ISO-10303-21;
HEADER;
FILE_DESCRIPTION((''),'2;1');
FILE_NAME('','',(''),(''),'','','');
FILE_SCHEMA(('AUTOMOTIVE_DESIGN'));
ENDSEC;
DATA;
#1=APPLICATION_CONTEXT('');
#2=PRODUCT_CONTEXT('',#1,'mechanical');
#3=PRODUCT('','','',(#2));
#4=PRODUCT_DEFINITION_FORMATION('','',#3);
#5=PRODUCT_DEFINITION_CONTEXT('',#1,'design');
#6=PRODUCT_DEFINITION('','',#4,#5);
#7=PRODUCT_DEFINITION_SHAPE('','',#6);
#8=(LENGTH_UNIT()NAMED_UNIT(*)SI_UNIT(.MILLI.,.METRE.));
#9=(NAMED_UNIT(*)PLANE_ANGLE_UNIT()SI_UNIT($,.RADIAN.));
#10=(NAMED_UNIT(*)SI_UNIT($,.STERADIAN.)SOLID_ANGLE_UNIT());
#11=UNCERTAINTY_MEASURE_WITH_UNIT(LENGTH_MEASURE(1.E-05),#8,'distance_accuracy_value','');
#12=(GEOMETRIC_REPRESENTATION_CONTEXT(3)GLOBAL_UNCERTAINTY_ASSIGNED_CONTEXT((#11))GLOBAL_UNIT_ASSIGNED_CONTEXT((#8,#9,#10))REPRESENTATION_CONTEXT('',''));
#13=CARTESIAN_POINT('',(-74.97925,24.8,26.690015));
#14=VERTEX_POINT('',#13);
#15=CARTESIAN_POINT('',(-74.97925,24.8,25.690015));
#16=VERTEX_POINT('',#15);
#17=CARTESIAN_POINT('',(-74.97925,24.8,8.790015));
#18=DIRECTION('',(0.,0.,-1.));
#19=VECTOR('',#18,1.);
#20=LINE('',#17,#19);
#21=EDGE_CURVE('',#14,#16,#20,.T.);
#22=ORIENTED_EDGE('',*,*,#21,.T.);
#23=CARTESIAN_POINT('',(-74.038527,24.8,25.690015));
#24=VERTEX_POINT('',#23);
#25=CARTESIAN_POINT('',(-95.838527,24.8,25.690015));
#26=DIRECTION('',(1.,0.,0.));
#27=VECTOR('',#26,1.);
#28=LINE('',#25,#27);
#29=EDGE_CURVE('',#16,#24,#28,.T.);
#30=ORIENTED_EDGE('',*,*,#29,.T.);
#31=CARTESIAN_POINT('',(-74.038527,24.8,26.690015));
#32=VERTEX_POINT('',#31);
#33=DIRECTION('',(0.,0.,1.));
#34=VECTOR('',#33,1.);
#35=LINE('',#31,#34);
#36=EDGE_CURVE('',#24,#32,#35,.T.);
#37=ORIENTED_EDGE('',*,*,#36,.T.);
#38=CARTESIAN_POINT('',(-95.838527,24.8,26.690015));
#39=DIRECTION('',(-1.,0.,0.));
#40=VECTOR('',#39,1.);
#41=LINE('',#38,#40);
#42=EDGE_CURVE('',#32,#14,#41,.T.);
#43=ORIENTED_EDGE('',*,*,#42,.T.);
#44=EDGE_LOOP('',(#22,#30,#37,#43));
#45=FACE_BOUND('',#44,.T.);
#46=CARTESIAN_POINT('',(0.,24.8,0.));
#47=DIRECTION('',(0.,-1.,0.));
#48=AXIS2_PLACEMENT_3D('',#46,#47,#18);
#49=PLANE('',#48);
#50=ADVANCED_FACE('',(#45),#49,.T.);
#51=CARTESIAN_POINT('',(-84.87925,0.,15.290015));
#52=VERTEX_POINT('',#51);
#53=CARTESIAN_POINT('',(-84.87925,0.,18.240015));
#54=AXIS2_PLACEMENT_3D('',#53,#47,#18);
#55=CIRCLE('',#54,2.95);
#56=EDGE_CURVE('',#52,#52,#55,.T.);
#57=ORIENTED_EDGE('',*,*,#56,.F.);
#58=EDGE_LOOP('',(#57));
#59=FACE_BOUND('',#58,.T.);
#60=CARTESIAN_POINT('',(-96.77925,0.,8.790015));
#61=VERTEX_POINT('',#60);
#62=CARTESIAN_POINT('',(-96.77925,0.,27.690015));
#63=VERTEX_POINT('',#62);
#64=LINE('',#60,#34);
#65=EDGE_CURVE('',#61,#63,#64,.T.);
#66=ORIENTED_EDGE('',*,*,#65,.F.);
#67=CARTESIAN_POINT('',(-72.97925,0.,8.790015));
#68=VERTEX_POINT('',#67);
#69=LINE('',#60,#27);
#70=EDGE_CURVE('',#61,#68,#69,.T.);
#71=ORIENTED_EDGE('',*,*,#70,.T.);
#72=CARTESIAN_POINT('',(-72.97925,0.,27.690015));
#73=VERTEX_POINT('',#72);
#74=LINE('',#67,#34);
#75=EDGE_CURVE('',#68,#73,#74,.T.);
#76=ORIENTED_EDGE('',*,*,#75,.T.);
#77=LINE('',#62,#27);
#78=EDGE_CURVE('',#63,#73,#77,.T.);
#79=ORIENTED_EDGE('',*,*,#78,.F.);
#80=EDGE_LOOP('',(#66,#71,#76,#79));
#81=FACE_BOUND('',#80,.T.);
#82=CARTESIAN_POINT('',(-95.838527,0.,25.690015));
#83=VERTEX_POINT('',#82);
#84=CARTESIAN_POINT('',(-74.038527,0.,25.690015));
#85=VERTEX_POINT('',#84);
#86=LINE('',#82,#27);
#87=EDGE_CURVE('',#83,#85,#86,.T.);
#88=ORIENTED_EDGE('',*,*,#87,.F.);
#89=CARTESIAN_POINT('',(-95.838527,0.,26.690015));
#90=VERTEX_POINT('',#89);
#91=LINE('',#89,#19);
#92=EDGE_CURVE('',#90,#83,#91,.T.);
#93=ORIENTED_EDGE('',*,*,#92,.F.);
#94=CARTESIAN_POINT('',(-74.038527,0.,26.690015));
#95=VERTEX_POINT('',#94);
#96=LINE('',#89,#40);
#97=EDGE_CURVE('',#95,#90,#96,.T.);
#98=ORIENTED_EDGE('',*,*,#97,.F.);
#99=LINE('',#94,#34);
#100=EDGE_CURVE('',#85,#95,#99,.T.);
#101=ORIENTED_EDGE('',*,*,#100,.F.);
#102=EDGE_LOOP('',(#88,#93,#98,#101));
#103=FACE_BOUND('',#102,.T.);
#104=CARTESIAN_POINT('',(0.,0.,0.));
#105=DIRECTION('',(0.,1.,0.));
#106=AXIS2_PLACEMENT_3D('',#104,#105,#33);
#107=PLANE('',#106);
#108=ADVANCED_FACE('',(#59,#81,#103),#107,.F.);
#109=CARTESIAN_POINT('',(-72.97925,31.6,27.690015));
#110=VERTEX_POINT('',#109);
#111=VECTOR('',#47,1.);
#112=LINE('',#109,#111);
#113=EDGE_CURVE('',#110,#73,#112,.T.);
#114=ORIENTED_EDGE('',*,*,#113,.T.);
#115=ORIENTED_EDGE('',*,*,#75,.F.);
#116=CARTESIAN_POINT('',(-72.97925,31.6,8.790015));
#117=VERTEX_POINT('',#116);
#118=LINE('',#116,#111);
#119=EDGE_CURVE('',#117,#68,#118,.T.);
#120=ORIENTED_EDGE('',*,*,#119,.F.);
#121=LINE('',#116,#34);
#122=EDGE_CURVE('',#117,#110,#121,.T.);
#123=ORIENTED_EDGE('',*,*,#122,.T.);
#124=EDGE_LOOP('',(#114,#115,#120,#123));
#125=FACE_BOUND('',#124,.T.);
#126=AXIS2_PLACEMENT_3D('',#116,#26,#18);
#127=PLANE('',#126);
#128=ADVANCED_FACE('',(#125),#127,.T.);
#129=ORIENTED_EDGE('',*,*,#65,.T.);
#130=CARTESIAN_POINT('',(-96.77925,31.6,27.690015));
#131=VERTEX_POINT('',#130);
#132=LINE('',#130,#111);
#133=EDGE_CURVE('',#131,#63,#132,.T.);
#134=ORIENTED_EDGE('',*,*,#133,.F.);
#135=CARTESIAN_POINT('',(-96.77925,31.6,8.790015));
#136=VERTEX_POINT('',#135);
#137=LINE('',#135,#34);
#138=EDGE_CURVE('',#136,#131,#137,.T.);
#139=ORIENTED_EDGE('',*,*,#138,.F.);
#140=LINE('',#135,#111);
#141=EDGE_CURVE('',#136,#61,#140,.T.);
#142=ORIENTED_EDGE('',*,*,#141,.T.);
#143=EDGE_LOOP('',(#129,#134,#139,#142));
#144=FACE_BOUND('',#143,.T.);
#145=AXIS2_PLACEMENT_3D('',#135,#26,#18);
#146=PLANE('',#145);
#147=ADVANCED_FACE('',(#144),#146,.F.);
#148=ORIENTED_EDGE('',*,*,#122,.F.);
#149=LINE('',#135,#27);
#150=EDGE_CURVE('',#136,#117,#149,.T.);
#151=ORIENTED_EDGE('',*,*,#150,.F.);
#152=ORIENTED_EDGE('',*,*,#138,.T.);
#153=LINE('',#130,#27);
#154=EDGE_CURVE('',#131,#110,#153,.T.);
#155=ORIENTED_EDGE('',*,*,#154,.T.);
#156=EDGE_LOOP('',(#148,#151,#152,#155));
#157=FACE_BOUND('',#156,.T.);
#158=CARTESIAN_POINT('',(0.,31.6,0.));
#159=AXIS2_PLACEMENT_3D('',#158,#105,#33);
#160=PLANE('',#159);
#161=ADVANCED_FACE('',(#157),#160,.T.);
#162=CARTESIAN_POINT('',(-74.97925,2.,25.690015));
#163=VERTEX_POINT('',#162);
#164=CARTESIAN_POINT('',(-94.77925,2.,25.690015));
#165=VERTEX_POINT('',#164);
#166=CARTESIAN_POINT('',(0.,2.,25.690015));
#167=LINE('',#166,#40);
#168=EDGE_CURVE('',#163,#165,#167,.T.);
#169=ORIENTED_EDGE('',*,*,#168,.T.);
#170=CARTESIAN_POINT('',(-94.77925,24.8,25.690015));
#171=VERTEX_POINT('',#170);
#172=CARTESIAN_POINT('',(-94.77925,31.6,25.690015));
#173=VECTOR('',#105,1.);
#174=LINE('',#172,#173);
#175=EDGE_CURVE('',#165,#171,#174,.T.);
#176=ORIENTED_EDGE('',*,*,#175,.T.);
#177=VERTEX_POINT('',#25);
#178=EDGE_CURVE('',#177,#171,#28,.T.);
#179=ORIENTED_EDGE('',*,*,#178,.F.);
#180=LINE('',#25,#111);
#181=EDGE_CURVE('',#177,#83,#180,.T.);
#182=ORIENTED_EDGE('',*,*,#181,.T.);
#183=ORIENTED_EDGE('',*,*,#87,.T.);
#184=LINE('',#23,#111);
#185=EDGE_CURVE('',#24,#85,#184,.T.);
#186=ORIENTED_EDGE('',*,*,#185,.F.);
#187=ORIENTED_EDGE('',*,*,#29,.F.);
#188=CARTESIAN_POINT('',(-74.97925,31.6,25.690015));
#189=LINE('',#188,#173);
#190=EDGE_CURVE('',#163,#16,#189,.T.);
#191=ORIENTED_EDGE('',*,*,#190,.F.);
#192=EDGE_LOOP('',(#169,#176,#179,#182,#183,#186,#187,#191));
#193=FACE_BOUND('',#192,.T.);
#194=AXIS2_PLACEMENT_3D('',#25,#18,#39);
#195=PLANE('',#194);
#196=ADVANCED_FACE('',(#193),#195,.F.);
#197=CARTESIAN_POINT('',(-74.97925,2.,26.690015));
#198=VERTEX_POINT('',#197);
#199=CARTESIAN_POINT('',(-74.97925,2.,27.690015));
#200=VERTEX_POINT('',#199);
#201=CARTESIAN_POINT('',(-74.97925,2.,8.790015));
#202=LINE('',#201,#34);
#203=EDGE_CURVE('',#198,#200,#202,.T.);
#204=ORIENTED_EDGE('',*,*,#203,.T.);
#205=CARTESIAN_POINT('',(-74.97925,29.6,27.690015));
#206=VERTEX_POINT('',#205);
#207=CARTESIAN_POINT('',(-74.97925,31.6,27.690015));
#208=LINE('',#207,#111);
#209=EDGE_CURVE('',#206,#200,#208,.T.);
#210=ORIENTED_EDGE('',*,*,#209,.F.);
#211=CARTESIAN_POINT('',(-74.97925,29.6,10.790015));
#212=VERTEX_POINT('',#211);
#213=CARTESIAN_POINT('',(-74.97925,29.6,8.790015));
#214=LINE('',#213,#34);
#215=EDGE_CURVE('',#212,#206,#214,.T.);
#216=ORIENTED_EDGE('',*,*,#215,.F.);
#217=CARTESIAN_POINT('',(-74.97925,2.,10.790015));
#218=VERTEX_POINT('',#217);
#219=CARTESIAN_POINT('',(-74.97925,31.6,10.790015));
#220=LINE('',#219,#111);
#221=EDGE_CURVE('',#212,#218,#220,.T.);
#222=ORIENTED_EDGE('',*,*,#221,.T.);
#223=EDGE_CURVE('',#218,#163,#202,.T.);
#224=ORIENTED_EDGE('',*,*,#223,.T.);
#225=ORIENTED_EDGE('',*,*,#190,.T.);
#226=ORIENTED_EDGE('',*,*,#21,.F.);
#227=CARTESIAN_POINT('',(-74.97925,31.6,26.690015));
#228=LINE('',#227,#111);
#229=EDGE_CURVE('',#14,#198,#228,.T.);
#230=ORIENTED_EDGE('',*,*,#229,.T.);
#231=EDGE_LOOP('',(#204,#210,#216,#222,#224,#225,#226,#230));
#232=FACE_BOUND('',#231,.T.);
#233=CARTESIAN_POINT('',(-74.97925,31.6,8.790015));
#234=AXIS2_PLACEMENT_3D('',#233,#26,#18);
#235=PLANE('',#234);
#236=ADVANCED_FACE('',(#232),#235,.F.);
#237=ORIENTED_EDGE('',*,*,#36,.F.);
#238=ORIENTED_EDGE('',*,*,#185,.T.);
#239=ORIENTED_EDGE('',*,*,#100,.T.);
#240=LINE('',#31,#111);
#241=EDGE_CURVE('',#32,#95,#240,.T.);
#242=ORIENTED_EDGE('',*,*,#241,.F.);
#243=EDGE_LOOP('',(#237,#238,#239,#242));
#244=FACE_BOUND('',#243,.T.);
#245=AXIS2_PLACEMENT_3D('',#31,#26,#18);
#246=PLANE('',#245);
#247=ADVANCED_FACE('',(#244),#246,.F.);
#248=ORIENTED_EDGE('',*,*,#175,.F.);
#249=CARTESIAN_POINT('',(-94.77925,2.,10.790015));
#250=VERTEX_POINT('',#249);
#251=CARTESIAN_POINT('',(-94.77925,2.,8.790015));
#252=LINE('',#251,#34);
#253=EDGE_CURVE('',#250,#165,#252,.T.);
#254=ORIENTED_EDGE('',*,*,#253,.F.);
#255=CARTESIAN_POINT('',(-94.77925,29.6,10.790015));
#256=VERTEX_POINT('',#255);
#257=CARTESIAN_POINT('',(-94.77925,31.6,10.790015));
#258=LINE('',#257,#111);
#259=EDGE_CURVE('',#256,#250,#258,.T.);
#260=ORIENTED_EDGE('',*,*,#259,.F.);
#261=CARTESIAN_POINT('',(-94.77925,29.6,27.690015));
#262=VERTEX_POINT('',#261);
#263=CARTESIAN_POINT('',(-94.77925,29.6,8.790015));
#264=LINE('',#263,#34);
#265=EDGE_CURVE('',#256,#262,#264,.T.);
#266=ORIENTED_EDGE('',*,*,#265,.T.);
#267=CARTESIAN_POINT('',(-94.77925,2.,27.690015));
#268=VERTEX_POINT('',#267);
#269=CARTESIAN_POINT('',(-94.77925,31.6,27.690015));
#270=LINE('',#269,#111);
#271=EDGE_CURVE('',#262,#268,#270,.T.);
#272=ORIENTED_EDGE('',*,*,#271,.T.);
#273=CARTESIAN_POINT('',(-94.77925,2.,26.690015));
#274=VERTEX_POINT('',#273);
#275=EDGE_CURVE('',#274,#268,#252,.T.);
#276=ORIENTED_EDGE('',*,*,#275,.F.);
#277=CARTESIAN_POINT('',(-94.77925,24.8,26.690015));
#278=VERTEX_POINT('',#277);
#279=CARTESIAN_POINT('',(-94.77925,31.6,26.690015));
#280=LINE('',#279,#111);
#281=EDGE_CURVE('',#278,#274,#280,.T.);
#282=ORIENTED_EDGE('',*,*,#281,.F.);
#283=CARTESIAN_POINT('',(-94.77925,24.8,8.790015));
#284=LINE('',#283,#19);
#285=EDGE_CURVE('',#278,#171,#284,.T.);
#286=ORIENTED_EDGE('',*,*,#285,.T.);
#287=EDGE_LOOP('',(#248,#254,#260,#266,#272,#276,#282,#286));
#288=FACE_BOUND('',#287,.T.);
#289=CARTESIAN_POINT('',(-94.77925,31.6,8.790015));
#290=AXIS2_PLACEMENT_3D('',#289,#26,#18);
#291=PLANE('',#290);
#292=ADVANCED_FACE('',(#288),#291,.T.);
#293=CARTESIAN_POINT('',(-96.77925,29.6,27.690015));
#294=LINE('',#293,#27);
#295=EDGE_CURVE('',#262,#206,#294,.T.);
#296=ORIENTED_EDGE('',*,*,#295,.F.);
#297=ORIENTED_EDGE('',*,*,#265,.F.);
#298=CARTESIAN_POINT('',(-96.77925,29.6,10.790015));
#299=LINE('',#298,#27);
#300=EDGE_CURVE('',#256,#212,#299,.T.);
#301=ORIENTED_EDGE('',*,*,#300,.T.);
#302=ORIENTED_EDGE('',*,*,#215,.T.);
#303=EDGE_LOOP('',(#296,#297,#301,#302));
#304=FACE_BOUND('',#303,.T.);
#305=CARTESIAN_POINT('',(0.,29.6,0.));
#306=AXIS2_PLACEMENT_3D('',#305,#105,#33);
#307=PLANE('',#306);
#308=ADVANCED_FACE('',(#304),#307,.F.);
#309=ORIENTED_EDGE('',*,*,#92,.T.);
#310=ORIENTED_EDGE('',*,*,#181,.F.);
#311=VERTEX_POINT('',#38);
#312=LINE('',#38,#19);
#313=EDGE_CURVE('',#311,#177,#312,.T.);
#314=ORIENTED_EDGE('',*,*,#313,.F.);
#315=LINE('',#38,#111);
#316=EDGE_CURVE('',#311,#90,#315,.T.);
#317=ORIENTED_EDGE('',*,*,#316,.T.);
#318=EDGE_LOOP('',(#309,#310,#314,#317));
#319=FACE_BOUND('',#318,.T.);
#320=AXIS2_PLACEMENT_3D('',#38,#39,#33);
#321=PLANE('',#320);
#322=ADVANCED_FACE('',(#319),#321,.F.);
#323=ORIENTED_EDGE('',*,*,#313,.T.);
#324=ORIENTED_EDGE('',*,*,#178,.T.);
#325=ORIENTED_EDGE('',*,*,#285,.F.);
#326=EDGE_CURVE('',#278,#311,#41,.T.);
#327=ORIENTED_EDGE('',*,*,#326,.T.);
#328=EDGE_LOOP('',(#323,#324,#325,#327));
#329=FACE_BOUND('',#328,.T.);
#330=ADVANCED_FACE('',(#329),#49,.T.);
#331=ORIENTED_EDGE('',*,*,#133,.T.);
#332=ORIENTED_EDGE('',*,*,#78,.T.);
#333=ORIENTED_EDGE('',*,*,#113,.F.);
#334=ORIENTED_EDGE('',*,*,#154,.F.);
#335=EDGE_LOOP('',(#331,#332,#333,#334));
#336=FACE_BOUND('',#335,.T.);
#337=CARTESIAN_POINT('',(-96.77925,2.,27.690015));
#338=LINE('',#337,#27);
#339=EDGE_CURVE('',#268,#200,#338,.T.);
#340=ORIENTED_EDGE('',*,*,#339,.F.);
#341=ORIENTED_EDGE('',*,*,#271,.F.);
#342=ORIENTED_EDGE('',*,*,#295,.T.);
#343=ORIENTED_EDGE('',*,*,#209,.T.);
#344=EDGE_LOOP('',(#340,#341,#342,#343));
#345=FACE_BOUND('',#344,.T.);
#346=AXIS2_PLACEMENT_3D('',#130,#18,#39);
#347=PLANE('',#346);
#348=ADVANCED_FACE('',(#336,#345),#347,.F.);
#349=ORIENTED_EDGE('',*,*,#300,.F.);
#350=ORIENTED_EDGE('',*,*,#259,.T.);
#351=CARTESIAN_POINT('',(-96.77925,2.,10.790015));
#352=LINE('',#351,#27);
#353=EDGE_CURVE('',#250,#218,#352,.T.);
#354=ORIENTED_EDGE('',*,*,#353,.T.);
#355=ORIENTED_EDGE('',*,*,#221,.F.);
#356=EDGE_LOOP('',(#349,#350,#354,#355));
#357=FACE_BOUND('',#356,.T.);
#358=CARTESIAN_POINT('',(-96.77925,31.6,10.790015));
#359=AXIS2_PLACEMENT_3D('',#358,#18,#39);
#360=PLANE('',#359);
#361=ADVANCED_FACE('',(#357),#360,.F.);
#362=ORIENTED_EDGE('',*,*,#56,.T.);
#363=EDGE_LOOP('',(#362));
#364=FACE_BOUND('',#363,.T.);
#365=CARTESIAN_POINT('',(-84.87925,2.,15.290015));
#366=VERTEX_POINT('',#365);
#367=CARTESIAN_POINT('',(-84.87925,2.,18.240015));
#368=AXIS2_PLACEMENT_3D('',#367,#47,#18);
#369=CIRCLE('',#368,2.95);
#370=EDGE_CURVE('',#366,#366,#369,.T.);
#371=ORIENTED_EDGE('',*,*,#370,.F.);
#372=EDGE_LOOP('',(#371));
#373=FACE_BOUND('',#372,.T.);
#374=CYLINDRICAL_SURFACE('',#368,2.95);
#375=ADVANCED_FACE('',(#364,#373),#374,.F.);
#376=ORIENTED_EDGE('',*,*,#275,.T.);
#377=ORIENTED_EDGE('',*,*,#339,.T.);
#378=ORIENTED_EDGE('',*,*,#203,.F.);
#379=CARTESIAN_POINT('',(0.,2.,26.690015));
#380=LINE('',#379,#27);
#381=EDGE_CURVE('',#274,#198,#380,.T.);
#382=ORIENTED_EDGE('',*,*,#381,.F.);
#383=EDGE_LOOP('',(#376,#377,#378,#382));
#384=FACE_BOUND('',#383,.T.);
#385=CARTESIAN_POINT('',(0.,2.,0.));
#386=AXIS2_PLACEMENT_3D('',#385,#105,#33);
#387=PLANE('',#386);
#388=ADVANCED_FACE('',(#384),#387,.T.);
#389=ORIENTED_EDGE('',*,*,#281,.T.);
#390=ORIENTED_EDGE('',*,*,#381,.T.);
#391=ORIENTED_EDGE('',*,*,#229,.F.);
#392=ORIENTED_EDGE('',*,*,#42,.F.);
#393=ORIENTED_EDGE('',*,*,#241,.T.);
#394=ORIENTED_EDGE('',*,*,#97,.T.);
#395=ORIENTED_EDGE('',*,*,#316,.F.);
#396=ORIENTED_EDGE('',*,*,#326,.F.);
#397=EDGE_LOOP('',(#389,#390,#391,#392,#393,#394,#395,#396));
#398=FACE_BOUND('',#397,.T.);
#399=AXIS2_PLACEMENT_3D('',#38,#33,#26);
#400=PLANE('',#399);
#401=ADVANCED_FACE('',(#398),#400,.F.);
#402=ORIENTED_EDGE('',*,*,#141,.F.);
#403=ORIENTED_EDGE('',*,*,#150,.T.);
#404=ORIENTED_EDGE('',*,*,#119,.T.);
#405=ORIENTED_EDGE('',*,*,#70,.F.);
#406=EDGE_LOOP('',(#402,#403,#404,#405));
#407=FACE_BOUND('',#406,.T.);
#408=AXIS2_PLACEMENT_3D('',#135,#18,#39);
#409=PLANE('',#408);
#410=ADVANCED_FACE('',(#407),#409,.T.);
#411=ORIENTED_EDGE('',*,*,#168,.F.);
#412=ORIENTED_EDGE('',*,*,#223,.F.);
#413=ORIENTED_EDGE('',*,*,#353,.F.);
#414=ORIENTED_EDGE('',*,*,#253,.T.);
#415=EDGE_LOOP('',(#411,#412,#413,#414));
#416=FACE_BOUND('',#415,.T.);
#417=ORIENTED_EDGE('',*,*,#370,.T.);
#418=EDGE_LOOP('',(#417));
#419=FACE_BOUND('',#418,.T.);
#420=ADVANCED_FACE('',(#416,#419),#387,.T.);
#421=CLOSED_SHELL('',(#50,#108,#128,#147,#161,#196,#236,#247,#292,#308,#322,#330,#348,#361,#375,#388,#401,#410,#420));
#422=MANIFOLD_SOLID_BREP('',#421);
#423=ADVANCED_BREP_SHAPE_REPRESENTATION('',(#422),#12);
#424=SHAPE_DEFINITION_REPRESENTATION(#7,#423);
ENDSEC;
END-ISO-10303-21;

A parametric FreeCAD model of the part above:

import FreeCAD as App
import Part
import Sketcher
from FreeCAD import Vector
Q = App.Units.Quantity


def faces_at(feature, points):
    """Names of the faces that lie closest to the given points."""
    faces = feature.Shape.Faces
    near = lambda p: min(range(len(faces)), key=lambda i: faces[i].distToShape(Part.Vertex(*p))[0])
    return sorted({f"Face{near(p) + 1}" for p in points})


def add_polygon(sketch, points):
    """Adds a closed chain of lines whose ends are joined by coincident constraints."""
    first, n = sketch.GeometryCount, len(points)
    for a, b in zip(points, points[1:] + points[:1]):
        sketch.addGeometry(Part.LineSegment(App.Vector(*a, 0), App.Vector(*b, 0)), False)
    for i in range(n):
        sketch.addConstraint(Sketcher.Constraint("Coincident", first + i, 2, first + (i + 1) % n, 1))

doc = App.newDocument("Part")
params = doc.addObject("Spreadsheet::Sheet", "Params")
for row, (alias, value) in enumerate([
    ("sketch1_width", "23.8 mm"),
    ("sketch1_height", "18.9 mm"),
    ("pad1_length", "31.6 mm"),
    ("thickness_wall", "2 mm"),
    ("sketch2_height", "1 mm"),
    ("sketch2_width", "21.8 mm"),
    ("pocket1_length", "24.8 mm"),
    ("sketch3_diameter", "5.9 mm"),
    ("pocket2_length", "2 mm"),
], start=1):
    params.set(f"A{row}", alias)
    params.set(f"B{row}", "=" + value)
    params.setAlias(f"B{row}", alias)

body = doc.addObject("PartDesign::Body", "Body")

# Sketch on XZ plane
sketch1 = body.newObject("Sketcher::SketchObject", "Sketch")
sketch1.AttachmentSupport = (doc.getObject("XZ_Plane"), [""])
sketch1.MapMode = "FlatFace"
add_polygon(sketch1, [(-96.77925, 8.790015), (-96.77925, 27.690015), (-72.97925, 27.690015), (-72.97925, 8.790015)])  # lines 0-3
sketch1.addConstraint(Sketcher.Constraint("Vertical", 0))
sketch1.addConstraint(Sketcher.Constraint("Horizontal", 1))
sketch1.addConstraint(Sketcher.Constraint("Vertical", 2))
sketch1.addConstraint(Sketcher.Constraint("Horizontal", 3))
sketch1.addConstraint(Sketcher.Constraint("DistanceX", 1, 1, 1, 2, Q("23.8 mm")))
sketch1.addConstraint(Sketcher.Constraint("DistanceY", 0, 1, 0, 2, Q("18.9 mm")))
sketch1.addConstraint(Sketcher.Constraint("DistanceX", 0, 2, -1, 1, Q("96.77925 mm")))
sketch1.addConstraint(Sketcher.Constraint("DistanceY", -1, 1, 0, 2, Q("27.690015 mm")))
sketch1.setExpression("Constraints[8]", "Params.sketch1_width")
sketch1.setExpression("Constraints[9]", "Params.sketch1_height")
pad1 = body.newObject("PartDesign::Pad", "Pad")
pad1.Profile = sketch1
pad1.setExpression("Length", "Params.pad1_length")
pad1.Reversed = True
doc.recompute()

thickness = body.newObject("PartDesign::Thickness", "Thickness")
thickness.Base = (pad1, faces_at(pad1, [(-84.879, 15.8, 27.69)]))
thickness.setExpression("Value", "Params.thickness_wall")
thickness.Reversed = True
thickness.Join = "Intersection"

# Sketch on XZ plane
sketch2 = body.newObject("Sketcher::SketchObject", "Sketch001")
sketch2.AttachmentSupport = (doc.getObject("XZ_Plane"), [""])
sketch2.MapMode = "FlatFace"
add_polygon(sketch2, [(-95.838527, 26.690015), (-95.838527, 25.690015), (-74.038527, 25.690015), (-74.038527, 26.690015)])  # lines 0-3
sketch2.addConstraint(Sketcher.Constraint("Vertical", 0))
sketch2.addConstraint(Sketcher.Constraint("Horizontal", 1))
sketch2.addConstraint(Sketcher.Constraint("Vertical", 2))
sketch2.addConstraint(Sketcher.Constraint("Horizontal", 3))
sketch2.addConstraint(Sketcher.Constraint("DistanceY", 0, 2, 0, 1, Q("1 mm")))
sketch2.addConstraint(Sketcher.Constraint("DistanceX", 1, 1, 1, 2, Q("21.8 mm")))
sketch2.addConstraint(Sketcher.Constraint("DistanceX", 0, 2, -1, 1, Q("95.838527 mm")))
sketch2.addConstraint(Sketcher.Constraint("DistanceY", -1, 1, 0, 2, Q("25.690015 mm")))
sketch2.setExpression("Constraints[8]", "Params.sketch2_height")
sketch2.setExpression("Constraints[9]", "Params.sketch2_width")
pocket1 = body.newObject("PartDesign::Pocket", "Pocket")
pocket1.Profile = sketch2
pocket1.setExpression("Length", "Params.pocket1_length")

# Sketch on XZ plane
sketch3 = body.newObject("Sketcher::SketchObject", "Sketch002")
sketch3.AttachmentSupport = (doc.getObject("XZ_Plane"), [""])
sketch3.MapMode = "FlatFace"
sketch3.addGeometry(Part.Circle(Vector(-84.87925, 18.240015, 0), Vector(0, 0, 1), 2.95), False)
sketch3.addConstraint(Sketcher.Constraint("Diameter", 0, Q("5.9 mm")))
sketch3.addConstraint(Sketcher.Constraint("DistanceX", 0, 3, -1, 1, Q("84.87925 mm")))
sketch3.addConstraint(Sketcher.Constraint("DistanceY", -1, 1, 0, 3, Q("18.240015 mm")))
sketch3.setExpression("Constraints[0]", "Params.sketch3_diameter")
pocket2 = body.newObject("PartDesign::Pocket", "Pocket001")
pocket2.Profile = sketch3
pocket2.setExpression("Length", "Params.pocket2_length")

doc.recompute()
